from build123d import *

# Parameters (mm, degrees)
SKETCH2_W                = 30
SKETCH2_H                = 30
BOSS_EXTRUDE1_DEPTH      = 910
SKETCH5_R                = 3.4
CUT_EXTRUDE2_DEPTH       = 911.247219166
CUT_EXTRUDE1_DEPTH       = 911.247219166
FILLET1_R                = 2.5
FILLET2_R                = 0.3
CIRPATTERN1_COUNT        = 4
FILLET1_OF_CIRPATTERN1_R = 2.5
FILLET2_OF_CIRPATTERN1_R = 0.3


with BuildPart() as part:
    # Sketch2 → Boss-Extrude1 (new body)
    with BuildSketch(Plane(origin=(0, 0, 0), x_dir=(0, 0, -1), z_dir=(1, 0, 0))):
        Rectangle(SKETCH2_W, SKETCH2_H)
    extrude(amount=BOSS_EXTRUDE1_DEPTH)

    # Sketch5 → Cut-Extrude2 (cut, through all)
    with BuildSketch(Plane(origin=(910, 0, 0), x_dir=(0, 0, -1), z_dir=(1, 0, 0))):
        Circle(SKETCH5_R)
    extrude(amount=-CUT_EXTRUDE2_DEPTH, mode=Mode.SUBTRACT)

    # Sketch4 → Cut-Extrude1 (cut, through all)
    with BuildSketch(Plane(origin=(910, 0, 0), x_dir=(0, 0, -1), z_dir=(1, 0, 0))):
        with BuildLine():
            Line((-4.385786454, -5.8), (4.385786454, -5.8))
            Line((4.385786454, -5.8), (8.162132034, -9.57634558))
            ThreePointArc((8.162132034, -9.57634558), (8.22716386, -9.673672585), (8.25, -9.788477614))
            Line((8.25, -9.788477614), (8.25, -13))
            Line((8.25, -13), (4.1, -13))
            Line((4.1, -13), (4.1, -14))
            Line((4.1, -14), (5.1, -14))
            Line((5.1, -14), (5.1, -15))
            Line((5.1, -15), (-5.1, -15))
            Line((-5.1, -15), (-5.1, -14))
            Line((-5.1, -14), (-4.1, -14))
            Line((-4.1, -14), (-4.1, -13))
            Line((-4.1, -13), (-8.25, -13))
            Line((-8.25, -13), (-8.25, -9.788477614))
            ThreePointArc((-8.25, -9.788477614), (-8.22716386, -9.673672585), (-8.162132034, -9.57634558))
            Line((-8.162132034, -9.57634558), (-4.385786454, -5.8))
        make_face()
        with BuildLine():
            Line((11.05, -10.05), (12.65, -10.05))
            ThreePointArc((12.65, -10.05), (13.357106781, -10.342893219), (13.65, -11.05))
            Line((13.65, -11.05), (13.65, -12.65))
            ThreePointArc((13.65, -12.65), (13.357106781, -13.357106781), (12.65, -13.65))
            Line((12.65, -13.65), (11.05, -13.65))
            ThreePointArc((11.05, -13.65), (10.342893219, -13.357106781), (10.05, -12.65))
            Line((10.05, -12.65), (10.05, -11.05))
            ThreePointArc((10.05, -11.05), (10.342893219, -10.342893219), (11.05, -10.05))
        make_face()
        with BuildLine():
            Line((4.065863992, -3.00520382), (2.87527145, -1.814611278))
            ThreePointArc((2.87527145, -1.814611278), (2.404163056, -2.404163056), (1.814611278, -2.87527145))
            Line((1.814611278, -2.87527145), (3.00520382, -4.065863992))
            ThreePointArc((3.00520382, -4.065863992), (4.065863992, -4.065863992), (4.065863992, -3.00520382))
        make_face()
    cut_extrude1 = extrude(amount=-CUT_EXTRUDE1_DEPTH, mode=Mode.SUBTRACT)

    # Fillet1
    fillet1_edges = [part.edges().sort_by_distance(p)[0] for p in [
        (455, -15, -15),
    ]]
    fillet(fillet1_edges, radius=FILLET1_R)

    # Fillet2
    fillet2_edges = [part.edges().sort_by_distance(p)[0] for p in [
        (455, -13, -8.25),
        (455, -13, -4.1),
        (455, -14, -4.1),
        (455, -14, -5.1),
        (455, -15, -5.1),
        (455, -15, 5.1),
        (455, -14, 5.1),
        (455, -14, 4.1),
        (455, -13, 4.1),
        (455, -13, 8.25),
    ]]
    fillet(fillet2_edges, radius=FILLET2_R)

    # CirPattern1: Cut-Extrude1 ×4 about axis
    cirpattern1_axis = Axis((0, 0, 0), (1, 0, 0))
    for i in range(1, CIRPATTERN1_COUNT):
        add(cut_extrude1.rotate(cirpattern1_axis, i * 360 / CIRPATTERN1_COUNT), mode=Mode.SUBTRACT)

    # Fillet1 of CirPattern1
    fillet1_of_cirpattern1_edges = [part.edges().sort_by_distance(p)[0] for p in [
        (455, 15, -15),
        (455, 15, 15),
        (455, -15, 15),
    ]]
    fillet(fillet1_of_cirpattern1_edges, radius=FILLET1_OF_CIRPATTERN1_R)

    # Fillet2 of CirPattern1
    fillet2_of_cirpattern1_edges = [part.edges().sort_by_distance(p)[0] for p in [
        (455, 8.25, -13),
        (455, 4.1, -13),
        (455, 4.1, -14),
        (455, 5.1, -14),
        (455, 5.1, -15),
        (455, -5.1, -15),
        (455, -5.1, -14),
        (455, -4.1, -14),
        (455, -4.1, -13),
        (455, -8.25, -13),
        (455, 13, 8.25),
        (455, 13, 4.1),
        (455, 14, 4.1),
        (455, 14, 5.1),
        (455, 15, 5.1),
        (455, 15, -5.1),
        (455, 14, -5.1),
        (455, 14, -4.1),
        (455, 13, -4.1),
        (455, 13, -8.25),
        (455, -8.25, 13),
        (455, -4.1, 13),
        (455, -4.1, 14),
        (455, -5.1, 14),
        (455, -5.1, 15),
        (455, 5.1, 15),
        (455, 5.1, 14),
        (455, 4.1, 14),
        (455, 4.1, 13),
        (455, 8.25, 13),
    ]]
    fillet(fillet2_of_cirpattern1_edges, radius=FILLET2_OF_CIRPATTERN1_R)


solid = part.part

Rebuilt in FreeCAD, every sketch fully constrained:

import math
import FreeCAD as App
import Part
import Sketcher

V = App.Vector
Q = App.Units.Quantity


def edges_at(feature, points):
    """Names of the edges that pass closest to the given points."""
    edges = feature.Shape.Edges
    near = lambda p: min(range(len(edges)), key=lambda i: edges[i].distToShape(Part.Vertex(*p))[0])
    return sorted({f"Edge{near(p) + 1}" for p in points})

doc = App.newDocument("Part")
params = doc.addObject("Spreadsheet::Sheet", "Params")
for row, (alias, value) in enumerate([
    ("sketch1_width", "30 mm"),
    ("pad1_length", "910 mm"),
    ("sketch2_diameter", "6.8 mm"),
    ("sketch3_radius", "1 mm"),
    ("sketch3_radius2", "0.3 mm"),
    ("sketch3_radius3", "3.4 mm"),
    ("sketch3_width", "1 mm"),
    ("sketch3_radius4", "0.75 mm"),
    ("fillet_radius", "2.5 mm"),
    ("fillet2_radius", "0.3 mm"),
    ("fillet3_radius", "2.5 mm"),
    ("fillet4_radius", "0.3 mm"),
], start=1):
    params.set(f"A{row}", alias)
    params.set(f"B{row}", "=" + value)
    params.setAlias(f"B{row}", alias)

body = doc.addObject("PartDesign::Body", "Body")

sketch1 = body.newObject("Sketcher::SketchObject", "Sketch")
sketch1.AttachmentSupport = (doc.getObject("YZ_Plane"), [""])
sketch1.MapMode = "FlatFace"
sketch1.addGeometry(Part.LineSegment(V(15, 15, 0), V(-15, 15, 0)), False)
sketch1.addGeometry(Part.LineSegment(V(-15, 15, 0), V(-15, -15, 0)), False)
sketch1.addGeometry(Part.LineSegment(V(-15, -15, 0), V(15, -15, 0)), False)
sketch1.addGeometry(Part.LineSegment(V(15, -15, 0), V(15, 15, 0)), False)
sketch1.addConstraint(Sketcher.Constraint("Coincident", 0, 2, 1, 1))
sketch1.addConstraint(Sketcher.Constraint("Coincident", 1, 2, 2, 1))
sketch1.addConstraint(Sketcher.Constraint("Coincident", 2, 2, 3, 1))
sketch1.addConstraint(Sketcher.Constraint("Coincident", 3, 2, 0, 1))
sketch1.addConstraint(Sketcher.Constraint("Horizontal", 0))
sketch1.addConstraint(Sketcher.Constraint("Vertical", 1))
sketch1.addConstraint(Sketcher.Constraint("Horizontal", 2))
sketch1.addConstraint(Sketcher.Constraint("Vertical", 3))
sketch1.addConstraint(Sketcher.Constraint("Symmetric", 0, 2, 2, 2, -1, 1))
sketch1.addConstraint(Sketcher.Constraint("Equal", 2, 1))
sketch1.addConstraint(Sketcher.Constraint("DistanceX", 0, 2, 0, 1, Q("30 mm")))
sketch1.setExpression("Constraints[10]", "Params.sketch1_width")
pad1 = body.newObject("PartDesign::Pad", "Pad")
pad1.Profile = sketch1
pad1.setExpression("Length", "Params.pad1_length")

sketch2 = body.newObject("Sketcher::SketchObject", "Sketch001")
sketch2.AttachmentSupport = (doc.getObject("YZ_Plane"), [""])
sketch2.MapMode = "FlatFace"
sketch2.AttachmentOffset = App.Placement(V(0, 0, 910), App.Rotation())
sketch2.addGeometry(Part.Circle(V(0, 0, 0), V(0, 0, 1), 3.4), False)
sketch2.addConstraint(Sketcher.Constraint("Coincident", 0, 3, -1, 1))
sketch2.addConstraint(Sketcher.Constraint("Diameter", 0, Q("6.8 mm")))
sketch2.setExpression("Constraints[1]", "Params.sketch2_diameter")
pocket1 = body.newObject("PartDesign::Pocket", "Pocket")
pocket1.Profile = sketch2
pocket1.Type = "ThroughAll"

sketch3 = body.newObject("Sketcher::SketchObject", "Sketch002")
sketch3.AttachmentSupport = (doc.getObject("YZ_Plane"), [""])
sketch3.MapMode = "FlatFace"
sketch3.AttachmentOffset = App.Placement(V(0, 0, 910), App.Rotation())
sketch3.addGeometry(Part.LineSegment(V(-5.8, -4.39, 0), V(-5.8, 4.39, 0)), False)
sketch3.addGeometry(Part.LineSegment(V(-5.8, 4.39, 0), V(-9.58, 8.16, 0)), False)
sketch3.addGeometry(Part.ArcOfCircle(Part.Circle(V(-9.79, 7.95, 0), V(0, 0, 1), 0.3), math.radians(45), math.radians(90)), False)
sketch3.addGeometry(Part.LineSegment(V(-9.79, 8.25, 0), V(-13, 8.25, 0)), False)
sketch3.addGeometry(Part.LineSegment(V(-13, 8.25, 0), V(-13, 4.1, 0)), False)
sketch3.addGeometry(Part.LineSegment(V(-13, 4.1, 0), V(-14, 4.1, 0)), False)
sketch3.addGeometry(Part.LineSegment(V(-14, 4.1, 0), V(-14, 5.1, 0)), False)
sketch3.addGeometry(Part.LineSegment(V(-14, 5.1, 0), V(-15, 5.1, 0)), False)
sketch3.addGeometry(Part.LineSegment(V(-15, 5.1, 0), V(-15, -5.1, 0)), False)
sketch3.addGeometry(Part.LineSegment(V(-15, -5.1, 0), V(-14, -5.1, 0)), False)
sketch3.addGeometry(Part.LineSegment(V(-14, -5.1, 0), V(-14, -4.1, 0)), False)
sketch3.addGeometry(Part.LineSegment(V(-14, -4.1, 0), V(-13, -4.1, 0)), False)
sketch3.addGeometry(Part.LineSegment(V(-13, -4.1, 0), V(-13, -8.25, 0)), False)
sketch3.addGeometry(Part.LineSegment(V(-13, -8.25, 0), V(-9.79, -8.25, 0)), False)
sketch3.addGeometry(Part.ArcOfCircle(Part.Circle(V(-9.79, -7.95, 0), V(0, 0, 1), 0.3), math.radians(-90), math.radians(-45)), False)
sketch3.addGeometry(Part.LineSegment(V(-9.58, -8.16, 0), V(-5.8, -4.39, 0)), False)
sketch3.addGeometry(Part.LineSegment(V(-10.05, -12.65, 0), V(-10.05, -11.05, 0)), False)
sketch3.addGeometry(Part.ArcOfCircle(Part.Circle(V(-11.05, -11.05, 0), V(0, 0, 1), 1), math.radians(0), math.radians(90)), False)
sketch3.addGeometry(Part.LineSegment(V(-11.05, -10.05, 0), V(-12.65, -10.05, 0)), False)
sketch3.addGeometry(Part.ArcOfCircle(Part.Circle(V(-12.65, -11.05, 0), V(0, 0, 1), 1), math.radians(90), math.radians(180)), False)
sketch3.addGeometry(Part.LineSegment(V(-13.65, -11.05, 0), V(-13.65, -12.65, 0)), False)
sketch3.addGeometry(Part.ArcOfCircle(Part.Circle(V(-12.65, -12.65, 0), V(0, 0, 1), 1), math.radians(-180), math.radians(-90)), False)
sketch3.addGeometry(Part.LineSegment(V(-12.65, -13.65, 0), V(-11.05, -13.65, 0)), False)
sketch3.addGeometry(Part.ArcOfCircle(Part.Circle(V(-11.05, -12.65, 0), V(0, 0, 1), 1), math.radians(-90), math.radians(0)), False)
sketch3.addGeometry(Part.LineSegment(V(-3.01, -4.07, 0), V(-1.81, -2.88, 0)), False)
sketch3.addGeometry(Part.ArcOfCircle(Part.Circle(V(0, 0, 0), V(0, 0, 1), 3.4), math.radians(-148), math.radians(-122)), False)
sketch3.addGeometry(Part.LineSegment(V(-2.88, -1.81, 0), V(-4.07, -3.01, 0)), False)
sketch3.addGeometry(Part.ArcOfCircle(Part.Circle(V(-3.54, -3.54, 0), V(0, 0, 1), 0.75), math.radians(135), math.radians(315)), False)
sketch3.addConstraint(Sketcher.Constraint("Coincident", 0, 2, 1, 1))
sketch3.addConstraint(Sketcher.Constraint("Tangent", 1, 2, 2, 1))
sketch3.addConstraint(Sketcher.Constraint("Tangent", 2, 2, 3, 1))
sketch3.addConstraint(Sketcher.Constraint("Coincident", 3, 2, 4, 1))
sketch3.addConstraint(Sketcher.Constraint("Coincident", 4, 2, 5, 1))
sketch3.addConstraint(Sketcher.Constraint("Coincident", 5, 2, 6, 1))
sketch3.addConstraint(Sketcher.Constraint("Coincident", 6, 2, 7, 1))
sketch3.addConstraint(Sketcher.Constraint("Coincident", 7, 2, 8, 1))
sketch3.addConstraint(Sketcher.Constraint("Coincident", 8, 2, 9, 1))
sketch3.addConstraint(Sketcher.Constraint("Coincident", 9, 2, 10, 1))
sketch3.addConstraint(Sketcher.Constraint("Coincident", 10, 2, 11, 1))
sketch3.addConstraint(Sketcher.Constraint("Coincident", 11, 2, 12, 1))
sketch3.addConstraint(Sketcher.Constraint("Coincident", 12, 2, 13, 1))
sketch3.addConstraint(Sketcher.Constraint("Tangent", 13, 2, 14, 1))
sketch3.addConstraint(Sketcher.Constraint("Tangent", 14, 2, 15, 1))
sketch3.addConstraint(Sketcher.Constraint("Coincident", 15, 2, 0, 1))
sketch3.addConstraint(Sketcher.Constraint("Tangent", 16, 2, 17, 1))
sketch3.addConstraint(Sketcher.Constraint("Tangent", 17, 2, 18, 1))
sketch3.addConstraint(Sketcher.Constraint("Tangent", 18, 2, 19, 1))
sketch3.addConstraint(Sketcher.Constraint("Tangent", 19, 2, 20, 1))
sketch3.addConstraint(Sketcher.Constraint("Tangent", 20, 2, 21, 1))
sketch3.addConstraint(Sketcher.Constraint("Tangent", 21, 2, 22, 1))
sketch3.addConstraint(Sketcher.Constraint("Tangent", 22, 2, 23, 1))
sketch3.addConstraint(Sketcher.Constraint("Tangent", 23, 2, 16, 1))
sketch3.addConstraint(Sketcher.Constraint("Coincident", 24, 2, 25, 2))
sketch3.addConstraint(Sketcher.Constraint("Coincident", 25, 1, 26, 1))
sketch3.addConstraint(Sketcher.Constraint("Tangent", 26, 2, 27, 1))
sketch3.addConstraint(Sketcher.Constraint("Tangent", 27, 2, 24, 1))
sketch3.addConstraint(Sketcher.Constraint("Vertical", 0))
sketch3.addConstraint(Sketcher.Constraint("Horizontal", 3))
sketch3.addConstraint(Sketcher.Constraint("Vertical", 4))
sketch3.addConstraint(Sketcher.Constraint("Horizontal", 5))
sketch3.addConstraint(Sketcher.Constraint("Vertical", 6))
sketch3.addConstraint(Sketcher.Constraint("Horizontal", 7))
sketch3.addConstraint(Sketcher.Constraint("Vertical", 8))
sketch3.addConstraint(Sketcher.Constraint("Horizontal", 9))
sketch3.addConstraint(Sketcher.Constraint("Vertical", 10))
sketch3.addConstraint(Sketcher.Constraint("Horizontal", 11))
sketch3.addConstraint(Sketcher.Constraint("Vertical", 12))
sketch3.addConstraint(Sketcher.Constraint("Horizontal", 13))
sketch3.addConstraint(Sketcher.Constraint("Vertical", 16))
sketch3.addConstraint(Sketcher.Constraint("Horizontal", 18))
sketch3.addConstraint(Sketcher.Constraint("Vertical", 20))
sketch3.addConstraint(Sketcher.Constraint("Horizontal", 22))
sketch3.addConstraint(Sketcher.Constraint("Coincident", 25, 3, -1, 1))
sketch3.addConstraint(Sketcher.Constraint("Equal", 2, 14))
sketch3.addConstraint(Sketcher.Constraint("Equal", 17, 19))
sketch3.addConstraint(Sketcher.Constraint("Equal", 19, 21))
sketch3.addConstraint(Sketcher.Constraint("Equal", 21, 23))
sketch3.addConstraint(Sketcher.Constraint("Symmetric", 2, 3, 14, 3, -1))
sketch3.addConstraint(Sketcher.Constraint("Symmetric", 6, 2, 9, 2, -1))
sketch3.addConstraint(Sketcher.Constraint("Symmetric", 4, 2, 11, 2, -1))
sketch3.addConstraint(Sketcher.Constraint("Perpendicular", 1, 15))
sketch3.addConstraint(Sketcher.Constraint("Parallel", 15, 24))
sketch3.addConstraint(Sketcher.Constraint("Parallel", 24, 26))
sketch3.addConstraint(Sketcher.Constraint("Vertical", 1, 2, 14, 2))
sketch3.addConstraint(Sketcher.Constraint("Equal", 5, 7))
sketch3.addConstraint(Sketcher.Constraint("Equal", 11, 6))
sketch3.addConstraint(Sketcher.Constraint("Equal", 22, 16))
sketch3.addConstraint(Sketcher.Constraint("Equal", 24, 26))
sketch3.addConstraint(Sketcher.Constraint("Radius", 17, Q("1 mm")))
sketch3.addConstraint(Sketcher.Constraint("Radius", 2, Q("0.3 mm")))
sketch3.addConstraint(Sketcher.Constraint("Radius", 25, Q("3.4 mm")))
sketch3.addConstraint(Sketcher.Constraint("DistanceX", 5, 2, 5, 1, Q("1 mm")))
sketch3.addConstraint(Sketcher.Constraint("Radius", 27, Q("0.75 mm")))
sketch3.addConstraint(Sketcher.Constraint("DistanceX", 18, 2, 18, 1, Q("1.6 mm")))
sketch3.addConstraint(Sketcher.Constraint("DistanceY", 8, 2, 8, 1, Q("10.2 mm")))
sketch3.addConstraint(Sketcher.Constraint("DistanceX", 3, 2, -1, 1, Q("13 mm")))
sketch3.addConstraint(Sketcher.Constraint("DistanceY", 17, 3, 2, 3, Q("19 mm")))
sketch3.addConstraint(Sketcher.Constraint("DistanceY", 4, 2, 4, 1, Q("4.15 mm")))
sketch3.addConstraint(Sketcher.Constraint("DistanceX", 0, 2, -1, 1, Q("5.8 mm")))
sketch3.addConstraint(Sketcher.Constraint("DistanceX", 17, 3, -1, 1, Q("11.05 mm")))
sketch3.addConstraint(Sketcher.Constraint("Distance", 1, Q("5.340559 mm")))
sketch3.addConstraint(Sketcher.Constraint("DistanceY", 27, 3, 0, 2, Q("7.92132 mm")))
sketch3.setExpression("Constraints[60]", "Params.sketch3_radius")
sketch3.setExpression("Constraints[61]", "Params.sketch3_radius2")
sketch3.setExpression("Constraints[62]", "Params.sketch3_radius3")
sketch3.setExpression("Constraints[63]", "Params.sketch3_width")
sketch3.setExpression("Constraints[64]", "Params.sketch3_radius4")
pocket2 = body.newObject("PartDesign::Pocket", "Pocket001")
pocket2.Profile = sketch3
pocket2.Type = "ThroughAll"
doc.recompute()

fillet = body.newObject("PartDesign::Fillet", "Fillet")
fillet.Base = (pocket2, edges_at(pocket2, [(455, -15, -15)]))
fillet.setExpression("Radius", "Params.fillet_radius")
doc.recompute()

fillet2 = body.newObject("PartDesign::Fillet", "Fillet001")
fillet2.Base = (fillet, edges_at(fillet, [
    (455, -13, -8.25),
    (455, -13, -4.1),
    (455, -14, -4.1),
    (455, -14, -5.1),
    (455, -15, -5.1),
    (455, -15, 5.1),
    (455, -14, 5.1),
    (455, -14, 4.1),
    (455, -13, 4.1),
    (455, -13, 8.25),
]))
fillet2.setExpression("Radius", "Params.fillet2_radius")
doc.recompute()

polarpattern = body.newObject("PartDesign::PolarPattern", "PolarPattern")
polarpattern.Originals = [pocket2]
polarpattern.Axis = (doc.getObject("X_Axis"), [""])
polarpattern.Angle = 360
polarpattern.Occurrences = 4
body.Tip = polarpattern
doc.recompute()

fillet3 = body.newObject("PartDesign::Fillet", "Fillet002")
fillet3.Base = (polarpattern, edges_at(polarpattern, [(455, 15, -15), (455, 15, 15), (455, -15, 15)]))
fillet3.setExpression("Radius", "Params.fillet3_radius")
doc.recompute()

fillet4 = body.newObject("PartDesign::Fillet", "Fillet003")
fillet4.Base = (fillet3, edges_at(fillet3, [
    (455, 8.25, -13),
    (455, 4.1, -13),
    (455, 4.1, -14),
    (455, 5.1, -14),
    (455, 5.1, -15),
    (455, -5.1, -15),
    (455, -5.1, -14),
    (455, -4.1, -14),
    (455, -4.1, -13),
    (455, -8.25, -13),
    (455, 13, 8.25),
    (455, 13, 4.1),
    (455, 14, 4.1),
    (455, 14, 5.1),
    (455, 15, 5.1),
    (455, 15, -5.1),
    (455, 14, -5.1),
    (455, 14, -4.1),
    (455, 13, -4.1),
    (455, 13, -8.25),
    (455, -8.25, 13),
    (455, -4.1, 13),
    (455, -4.1, 14),
    (455, -5.1, 14),
    (455, -5.1, 15),
    (455, 5.1, 15),
    (455, 5.1, 14),
    (455, 4.1, 14),
    (455, 4.1, 13),
    (455, 8.25, 13),
]))
fillet4.setExpression("Radius", "Params.fillet4_radius")

doc.recompute()
